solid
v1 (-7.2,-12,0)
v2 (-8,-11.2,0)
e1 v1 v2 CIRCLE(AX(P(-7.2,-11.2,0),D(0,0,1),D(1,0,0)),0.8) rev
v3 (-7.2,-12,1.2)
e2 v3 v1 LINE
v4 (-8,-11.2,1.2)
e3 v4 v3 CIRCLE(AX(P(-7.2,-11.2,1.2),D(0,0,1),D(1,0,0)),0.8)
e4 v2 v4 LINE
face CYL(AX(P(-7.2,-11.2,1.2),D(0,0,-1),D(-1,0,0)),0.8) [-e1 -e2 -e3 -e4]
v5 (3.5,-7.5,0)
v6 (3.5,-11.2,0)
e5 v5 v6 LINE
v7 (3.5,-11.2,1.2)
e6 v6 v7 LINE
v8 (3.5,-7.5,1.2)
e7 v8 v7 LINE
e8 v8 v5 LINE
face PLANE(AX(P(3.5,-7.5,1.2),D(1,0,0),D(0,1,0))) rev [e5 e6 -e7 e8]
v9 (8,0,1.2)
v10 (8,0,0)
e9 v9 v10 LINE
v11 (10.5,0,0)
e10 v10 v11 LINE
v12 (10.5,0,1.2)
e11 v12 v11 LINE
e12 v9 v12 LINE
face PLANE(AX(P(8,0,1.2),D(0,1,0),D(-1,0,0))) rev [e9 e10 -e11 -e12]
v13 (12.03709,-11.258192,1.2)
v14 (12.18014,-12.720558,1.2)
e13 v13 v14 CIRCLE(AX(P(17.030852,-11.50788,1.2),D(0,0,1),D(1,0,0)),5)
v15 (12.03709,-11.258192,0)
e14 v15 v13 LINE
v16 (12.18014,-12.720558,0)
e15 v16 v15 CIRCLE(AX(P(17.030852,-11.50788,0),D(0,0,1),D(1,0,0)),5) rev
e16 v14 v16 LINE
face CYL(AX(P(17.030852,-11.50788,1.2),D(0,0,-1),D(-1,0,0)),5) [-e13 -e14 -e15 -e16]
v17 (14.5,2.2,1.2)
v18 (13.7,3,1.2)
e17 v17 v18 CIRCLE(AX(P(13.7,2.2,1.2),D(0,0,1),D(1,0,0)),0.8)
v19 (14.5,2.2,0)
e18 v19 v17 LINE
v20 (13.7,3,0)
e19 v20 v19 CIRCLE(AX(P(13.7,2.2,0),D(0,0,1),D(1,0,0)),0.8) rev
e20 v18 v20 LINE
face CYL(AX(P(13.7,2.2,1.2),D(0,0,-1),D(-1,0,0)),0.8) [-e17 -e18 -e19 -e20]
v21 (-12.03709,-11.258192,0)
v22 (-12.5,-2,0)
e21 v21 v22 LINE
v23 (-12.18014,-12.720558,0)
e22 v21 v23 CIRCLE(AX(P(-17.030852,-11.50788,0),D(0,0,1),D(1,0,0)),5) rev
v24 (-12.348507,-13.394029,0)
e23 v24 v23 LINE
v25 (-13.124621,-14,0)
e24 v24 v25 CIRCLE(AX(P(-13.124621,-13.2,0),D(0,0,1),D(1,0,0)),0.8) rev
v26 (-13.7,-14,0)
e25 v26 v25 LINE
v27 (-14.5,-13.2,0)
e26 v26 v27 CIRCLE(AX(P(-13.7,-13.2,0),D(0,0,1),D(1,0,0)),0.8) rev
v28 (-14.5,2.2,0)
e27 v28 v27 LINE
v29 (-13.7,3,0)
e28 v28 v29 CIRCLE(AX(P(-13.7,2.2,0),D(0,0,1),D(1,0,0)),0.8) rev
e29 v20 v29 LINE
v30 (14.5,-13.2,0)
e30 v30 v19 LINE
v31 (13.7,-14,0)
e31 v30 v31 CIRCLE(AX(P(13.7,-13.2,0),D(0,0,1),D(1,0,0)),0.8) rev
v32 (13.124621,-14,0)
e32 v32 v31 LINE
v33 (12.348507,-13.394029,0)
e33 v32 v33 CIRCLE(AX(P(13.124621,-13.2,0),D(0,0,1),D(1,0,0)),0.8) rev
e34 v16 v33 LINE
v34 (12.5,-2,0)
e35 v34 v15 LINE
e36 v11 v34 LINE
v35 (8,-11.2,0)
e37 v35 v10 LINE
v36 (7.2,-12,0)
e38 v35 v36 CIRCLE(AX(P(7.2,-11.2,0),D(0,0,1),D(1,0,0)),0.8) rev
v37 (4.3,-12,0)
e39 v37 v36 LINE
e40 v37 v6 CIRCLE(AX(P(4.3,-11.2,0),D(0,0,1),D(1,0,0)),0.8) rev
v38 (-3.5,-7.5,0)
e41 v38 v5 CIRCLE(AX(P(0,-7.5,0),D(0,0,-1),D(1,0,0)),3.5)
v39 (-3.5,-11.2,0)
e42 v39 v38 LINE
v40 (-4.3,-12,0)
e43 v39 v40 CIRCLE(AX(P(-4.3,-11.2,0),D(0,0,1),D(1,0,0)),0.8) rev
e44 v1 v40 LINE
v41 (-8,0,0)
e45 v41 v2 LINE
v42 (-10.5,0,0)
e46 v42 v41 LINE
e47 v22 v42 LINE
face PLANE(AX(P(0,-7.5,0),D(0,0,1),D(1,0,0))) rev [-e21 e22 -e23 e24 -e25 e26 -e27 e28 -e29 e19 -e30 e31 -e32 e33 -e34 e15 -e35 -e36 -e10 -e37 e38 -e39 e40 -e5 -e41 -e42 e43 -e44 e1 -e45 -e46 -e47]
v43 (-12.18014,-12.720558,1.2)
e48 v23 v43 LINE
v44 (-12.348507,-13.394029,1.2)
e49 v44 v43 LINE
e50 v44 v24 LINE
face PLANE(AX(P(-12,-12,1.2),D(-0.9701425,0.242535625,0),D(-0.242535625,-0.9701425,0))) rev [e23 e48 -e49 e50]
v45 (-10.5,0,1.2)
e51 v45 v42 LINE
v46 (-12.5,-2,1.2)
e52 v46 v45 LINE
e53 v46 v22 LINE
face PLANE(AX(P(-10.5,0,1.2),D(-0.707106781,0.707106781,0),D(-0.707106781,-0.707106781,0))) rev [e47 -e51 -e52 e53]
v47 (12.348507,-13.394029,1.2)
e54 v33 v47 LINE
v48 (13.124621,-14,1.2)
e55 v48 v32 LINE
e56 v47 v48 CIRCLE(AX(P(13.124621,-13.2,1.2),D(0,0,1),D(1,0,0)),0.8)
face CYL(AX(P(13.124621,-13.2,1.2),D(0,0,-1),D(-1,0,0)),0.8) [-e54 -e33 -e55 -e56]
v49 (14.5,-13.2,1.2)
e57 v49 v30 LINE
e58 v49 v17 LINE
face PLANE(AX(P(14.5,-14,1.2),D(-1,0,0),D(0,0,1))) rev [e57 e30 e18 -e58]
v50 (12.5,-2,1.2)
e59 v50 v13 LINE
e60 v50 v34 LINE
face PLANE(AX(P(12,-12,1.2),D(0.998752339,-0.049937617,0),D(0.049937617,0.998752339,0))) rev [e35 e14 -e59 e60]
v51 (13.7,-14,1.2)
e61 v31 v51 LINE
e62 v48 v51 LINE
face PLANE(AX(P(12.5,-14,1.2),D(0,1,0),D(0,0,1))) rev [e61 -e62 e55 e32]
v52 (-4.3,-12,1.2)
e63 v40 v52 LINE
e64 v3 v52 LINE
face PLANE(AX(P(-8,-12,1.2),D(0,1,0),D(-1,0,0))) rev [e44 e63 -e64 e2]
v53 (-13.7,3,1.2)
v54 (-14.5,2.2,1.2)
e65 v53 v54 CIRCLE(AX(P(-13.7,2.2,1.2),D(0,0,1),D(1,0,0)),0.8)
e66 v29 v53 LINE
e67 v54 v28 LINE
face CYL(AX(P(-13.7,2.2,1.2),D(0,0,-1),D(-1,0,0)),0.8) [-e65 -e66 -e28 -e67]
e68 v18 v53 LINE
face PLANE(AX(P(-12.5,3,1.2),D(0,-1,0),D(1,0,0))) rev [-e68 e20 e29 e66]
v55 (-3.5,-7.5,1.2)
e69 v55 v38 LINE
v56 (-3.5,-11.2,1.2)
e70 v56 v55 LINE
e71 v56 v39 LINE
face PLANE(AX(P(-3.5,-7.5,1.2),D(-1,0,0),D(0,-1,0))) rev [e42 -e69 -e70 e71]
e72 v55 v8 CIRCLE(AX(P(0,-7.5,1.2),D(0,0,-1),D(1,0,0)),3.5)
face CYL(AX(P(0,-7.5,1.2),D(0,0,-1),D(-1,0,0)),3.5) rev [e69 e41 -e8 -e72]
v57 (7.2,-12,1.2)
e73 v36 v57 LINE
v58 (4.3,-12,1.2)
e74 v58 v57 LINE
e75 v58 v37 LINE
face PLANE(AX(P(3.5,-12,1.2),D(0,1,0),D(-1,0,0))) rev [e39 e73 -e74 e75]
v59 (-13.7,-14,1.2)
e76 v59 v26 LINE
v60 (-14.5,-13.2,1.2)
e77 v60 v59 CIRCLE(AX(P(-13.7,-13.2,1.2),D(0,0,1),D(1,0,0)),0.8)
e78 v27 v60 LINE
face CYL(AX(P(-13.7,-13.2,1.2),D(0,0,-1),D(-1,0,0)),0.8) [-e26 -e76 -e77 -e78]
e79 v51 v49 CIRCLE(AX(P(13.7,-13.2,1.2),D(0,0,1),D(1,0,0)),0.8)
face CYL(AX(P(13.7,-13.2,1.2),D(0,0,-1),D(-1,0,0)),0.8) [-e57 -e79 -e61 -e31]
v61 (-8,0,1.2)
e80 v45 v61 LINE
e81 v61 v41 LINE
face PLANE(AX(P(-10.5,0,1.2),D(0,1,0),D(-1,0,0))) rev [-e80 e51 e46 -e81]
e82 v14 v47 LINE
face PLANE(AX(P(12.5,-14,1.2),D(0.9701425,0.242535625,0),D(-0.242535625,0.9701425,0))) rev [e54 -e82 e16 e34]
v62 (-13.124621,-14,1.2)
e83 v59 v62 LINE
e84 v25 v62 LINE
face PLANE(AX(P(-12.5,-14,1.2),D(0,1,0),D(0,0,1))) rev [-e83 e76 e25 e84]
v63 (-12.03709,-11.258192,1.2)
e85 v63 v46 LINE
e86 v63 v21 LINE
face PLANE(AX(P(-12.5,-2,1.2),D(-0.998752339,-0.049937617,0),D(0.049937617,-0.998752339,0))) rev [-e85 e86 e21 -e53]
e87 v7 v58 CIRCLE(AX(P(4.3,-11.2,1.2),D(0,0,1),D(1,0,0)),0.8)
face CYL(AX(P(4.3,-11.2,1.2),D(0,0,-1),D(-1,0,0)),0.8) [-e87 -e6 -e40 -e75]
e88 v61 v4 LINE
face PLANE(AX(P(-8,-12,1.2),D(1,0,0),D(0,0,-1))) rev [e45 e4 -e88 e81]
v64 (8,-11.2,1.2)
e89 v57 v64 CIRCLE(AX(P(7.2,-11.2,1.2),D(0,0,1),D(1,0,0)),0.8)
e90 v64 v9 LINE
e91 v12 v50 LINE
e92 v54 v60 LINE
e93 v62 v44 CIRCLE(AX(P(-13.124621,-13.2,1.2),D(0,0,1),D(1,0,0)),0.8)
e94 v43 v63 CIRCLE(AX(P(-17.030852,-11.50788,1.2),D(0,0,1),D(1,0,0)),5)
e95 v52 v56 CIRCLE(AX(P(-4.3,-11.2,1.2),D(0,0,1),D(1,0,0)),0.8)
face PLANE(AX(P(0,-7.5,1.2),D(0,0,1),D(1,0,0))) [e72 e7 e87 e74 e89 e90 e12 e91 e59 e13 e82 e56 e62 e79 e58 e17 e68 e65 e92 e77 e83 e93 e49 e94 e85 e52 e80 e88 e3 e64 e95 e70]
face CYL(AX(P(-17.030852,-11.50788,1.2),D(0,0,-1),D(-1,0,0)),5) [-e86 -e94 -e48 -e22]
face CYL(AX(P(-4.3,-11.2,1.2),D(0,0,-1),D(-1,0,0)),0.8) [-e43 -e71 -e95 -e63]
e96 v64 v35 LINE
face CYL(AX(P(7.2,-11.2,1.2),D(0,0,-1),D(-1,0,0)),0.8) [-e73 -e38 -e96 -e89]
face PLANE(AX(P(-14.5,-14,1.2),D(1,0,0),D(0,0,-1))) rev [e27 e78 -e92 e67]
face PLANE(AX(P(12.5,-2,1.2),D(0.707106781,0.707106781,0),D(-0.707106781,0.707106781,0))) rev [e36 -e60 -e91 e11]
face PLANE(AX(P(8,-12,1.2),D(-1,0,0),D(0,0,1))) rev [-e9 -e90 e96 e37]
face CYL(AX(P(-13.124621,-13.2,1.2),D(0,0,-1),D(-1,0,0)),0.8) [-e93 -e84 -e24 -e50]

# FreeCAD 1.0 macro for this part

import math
import FreeCAD as App
import Part
import Sketcher


def edges_at(feature, points):
    """Names of the edges that pass closest to the given points."""
    edges = feature.Shape.Edges
    near = lambda p: min(range(len(edges)), key=lambda i: edges[i].distToShape(Part.Vertex(*p))[0])
    return sorted({f"Edge{near(p) + 1}" for p in points})

doc = App.newDocument("Part")
body = doc.addObject("PartDesign::Body", "Body")

sketch1 = doc.addObject("Sketcher::SketchObject", "Sketch")
body.addObject(sketch1)
sketch1.AttachmentSupport = (doc.XY_Plane, [""])
sketch1.MapMode = "FlatFace"
sketch1.addGeometry(Part.LineSegment(App.Vector(-12.5, -2, 0), App.Vector(-10.5, 0, 0)), False)
sketch1.addGeometry(Part.LineSegment(App.Vector(-10.5, 0, 0), App.Vector(-8, 0, 0)), False)
sketch1.addGeometry(Part.LineSegment(App.Vector(-8, 0, 0), App.Vector(-8, -12, 0)), False)
sketch1.addGeometry(Part.LineSegment(App.Vector(-8, -12, 0), App.Vector(-3.5, -12, 0)), False)
sketch1.addGeometry(Part.LineSegment(App.Vector(-3.5, -12, 0), App.Vector(-3.5, -7.5, 0)), False)
sketch1.addGeometry(Part.ArcOfCircle(Part.Circle(App.Vector(0, -7.5, 0), App.Vector(0, 0, 1), 3.5), math.radians(0), math.radians(180)), False)
sketch1.addGeometry(Part.LineSegment(App.Vector(3.5, -7.5, 0), App.Vector(3.5, -12, 0)), False)
sketch1.addGeometry(Part.LineSegment(App.Vector(3.5, -12, 0), App.Vector(8, -12, 0)), False)
sketch1.addGeometry(Part.LineSegment(App.Vector(8, -12, 0), App.Vector(8, 0, 0)), False)
sketch1.addGeometry(Part.LineSegment(App.Vector(8, 0, 0), App.Vector(10.5, 0, 0)), False)
sketch1.addGeometry(Part.LineSegment(App.Vector(10.5, 0, 0), App.Vector(12.5, -2, 0)), False)
sketch1.addGeometry(Part.LineSegment(App.Vector(12.5, -2, 0), App.Vector(12, -12, 0)), False)
sketch1.addGeometry(Part.LineSegment(App.Vector(12, -12, 0), App.Vector(12.5, -14, 0)), False)
sketch1.addGeometry(Part.LineSegment(App.Vector(12.5, -14, 0), App.Vector(14.5, -14, 0)), False)
sketch1.addGeometry(Part.LineSegment(App.Vector(14.5, -14, 0), App.Vector(14.5, 3, 0)), False)
sketch1.addGeometry(Part.LineSegment(App.Vector(14.5, 3, 0), App.Vector(-14.5, 3, 0)), False)
sketch1.addGeometry(Part.LineSegment(App.Vector(-14.5, 3, 0), App.Vector(-14.5, -14, 0)), False)
sketch1.addGeometry(Part.LineSegment(App.Vector(-14.5, -14, 0), App.Vector(-12.5, -14, 0)), False)
sketch1.addGeometry(Part.LineSegment(App.Vector(-12.5, -14, 0), App.Vector(-12, -12, 0)), False)
sketch1.addGeometry(Part.LineSegment(App.Vector(-12, -12, 0), App.Vector(-12.5, -2, 0)), False)
sketch1.addConstraint(Sketcher.Constraint("Coincident", 0, 2, 1, 1))
sketch1.addConstraint(Sketcher.Constraint("Coincident", 1, 2, 2, 1))
sketch1.addConstraint(Sketcher.Constraint("Coincident", 2, 2, 3, 1))
sketch1.addConstraint(Sketcher.Constraint("Coincident", 3, 2, 4, 1))
sketch1.addConstraint(Sketcher.Constraint("Tangent", 4, 2, 5, 2))
sketch1.addConstraint(Sketcher.Constraint("Tangent", 5, 1, 6, 1))
sketch1.addConstraint(Sketcher.Constraint("Coincident", 6, 2, 7, 1))
sketch1.addConstraint(Sketcher.Constraint("Coincident", 7, 2, 8, 1))
sketch1.addConstraint(Sketcher.Constraint("Coincident", 8, 2, 9, 1))
sketch1.addConstraint(Sketcher.Constraint("Coincident", 9, 2, 10, 1))
sketch1.addConstraint(Sketcher.Constraint("Coincident", 10, 2, 11, 1))
sketch1.addConstraint(Sketcher.Constraint("Coincident", 11, 2, 12, 1))
sketch1.addConstraint(Sketcher.Constraint("Coincident", 12, 2, 13, 1))
sketch1.addConstraint(Sketcher.Constraint("Coincident", 13, 2, 14, 1))
sketch1.addConstraint(Sketcher.Constraint("Coincident", 14, 2, 15, 1))
sketch1.addConstraint(Sketcher.Constraint("Coincident", 15, 2, 16, 1))
sketch1.addConstraint(Sketcher.Constraint("Coincident", 16, 2, 17, 1))
sketch1.addConstraint(Sketcher.Constraint("Coincident", 17, 2, 18, 1))
sketch1.addConstraint(Sketcher.Constraint("Coincident", 18, 2, 19, 1))
sketch1.addConstraint(Sketcher.Constraint("Coincident", 19, 2, 0, 1))
sketch1.addConstraint(Sketcher.Constraint("Horizontal", 1))
sketch1.addConstraint(Sketcher.Constraint("Vertical", 2))
sketch1.addConstraint(Sketcher.Constraint("Horizontal", 3))
sketch1.addConstraint(Sketcher.Constraint("Vertical", 4))
sketch1.addConstraint(Sketcher.Constraint("Vertical", 6))
sketch1.addConstraint(Sketcher.Constraint("Horizontal", 7))
sketch1.addConstraint(Sketcher.Constraint("Vertical", 8))
sketch1.addConstraint(Sketcher.Constraint("Horizontal", 9))
sketch1.addConstraint(Sketcher.Constraint("Horizontal", 13))
sketch1.addConstraint(Sketcher.Constraint("Vertical", 14))
sketch1.addConstraint(Sketcher.Constraint("Horizontal", 15))
sketch1.addConstraint(Sketcher.Constraint("Vertical", 16))
sketch1.addConstraint(Sketcher.Constraint("Horizontal", 17))
sketch1.addConstraint(Sketcher.Constraint("Symmetric", 1, 2, 8, 2, -1, 1))
sketch1.addConstraint(Sketcher.Constraint("Symmetric", 3, 2, 6, 2, -2))
sketch1.addConstraint(Sketcher.Constraint("Symmetric", 0, 2, 9, 2, -2))
sketch1.addConstraint(Sketcher.Constraint("Symmetric", 13, 2, 16, 2, -2))
sketch1.addConstraint(Sketcher.Constraint("Symmetric", 11, 2, 18, 2, -2))
sketch1.addConstraint(Sketcher.Constraint("Symmetric", 10, 2, 19, 2, -2))
sketch1.addConstraint(Sketcher.Constraint("Perpendicular", 0, 10))
sketch1.addConstraint(Sketcher.Constraint("Horizontal", 7, 2, 11, 2))
sketch1.addConstraint(Sketcher.Constraint("Vertical", 10, 2, 12, 2))
sketch1.addConstraint(Sketcher.Constraint("Vertical", 17, 2, 19, 2))
sketch1.addConstraint(Sketcher.Constraint("Equal", 7, 4))
sketch1.addConstraint(Sketcher.Constraint("Radius", 5, 3.5))
sketch1.addConstraint(Sketcher.Constraint("DistanceX", 13, 1, 13, 2, 2.0))
sketch1.addConstraint(Sketcher.Constraint("DistanceX", 15, 2, 15, 1, 29.0))
sketch1.addConstraint(Sketcher.Constraint("DistanceY", 2, 2, 2, 1, 12.0))
sketch1.addConstraint(Sketcher.Constraint("DistanceY", 14, 1, 14, 2, 17.0))
sketch1.addConstraint(Sketcher.Constraint("DistanceX", 1, 1, 1, 2, 2.5))
sketch1.addConstraint(Sketcher.Constraint("DistanceX", 3, 1, 3, 2, 4.5))
sketch1.addConstraint(Sketcher.Constraint("DistanceX", -1, 1, 11, 2, 12.0))
sketch1.addConstraint(Sketcher.Constraint("DistanceY", 12, 2, -1, 1, 14.0))
pad1 = doc.addObject("PartDesign::Pad", "Pad")
body.addObject(pad1)
pad1.Profile = sketch1
pad1.Length = 1.2
doc.recompute()

fillet = doc.addObject("PartDesign::Fillet", "Fillet")
body.addObject(fillet)
fillet.Base = (pad1, edges_at(pad1, [(-12, -12, 0.6), (12, -12, 0.6)]))
fillet.Radius = 5
doc.recompute()

fillet2 = doc.addObject("PartDesign::Fillet", "Fillet001")
body.addObject(fillet2)
fillet2.Base = (fillet, edges_at(fillet, [
    (-12.5, -14, 0.6),
    (-14.5, -14, 0.6),
    (-14.5, 3, 0.6),
    (14.5, 3, 0.6),
    (14.5, -14, 0.6),
    (12.5, -14, 0.6),
    (8, -12, 0.6),
    (3.5, -12, 0.6),
    (-3.5, -12, 0.6),
    (-8, -12, 0.6),
]))
fillet2.Radius = 0.8

doc.recompute()
